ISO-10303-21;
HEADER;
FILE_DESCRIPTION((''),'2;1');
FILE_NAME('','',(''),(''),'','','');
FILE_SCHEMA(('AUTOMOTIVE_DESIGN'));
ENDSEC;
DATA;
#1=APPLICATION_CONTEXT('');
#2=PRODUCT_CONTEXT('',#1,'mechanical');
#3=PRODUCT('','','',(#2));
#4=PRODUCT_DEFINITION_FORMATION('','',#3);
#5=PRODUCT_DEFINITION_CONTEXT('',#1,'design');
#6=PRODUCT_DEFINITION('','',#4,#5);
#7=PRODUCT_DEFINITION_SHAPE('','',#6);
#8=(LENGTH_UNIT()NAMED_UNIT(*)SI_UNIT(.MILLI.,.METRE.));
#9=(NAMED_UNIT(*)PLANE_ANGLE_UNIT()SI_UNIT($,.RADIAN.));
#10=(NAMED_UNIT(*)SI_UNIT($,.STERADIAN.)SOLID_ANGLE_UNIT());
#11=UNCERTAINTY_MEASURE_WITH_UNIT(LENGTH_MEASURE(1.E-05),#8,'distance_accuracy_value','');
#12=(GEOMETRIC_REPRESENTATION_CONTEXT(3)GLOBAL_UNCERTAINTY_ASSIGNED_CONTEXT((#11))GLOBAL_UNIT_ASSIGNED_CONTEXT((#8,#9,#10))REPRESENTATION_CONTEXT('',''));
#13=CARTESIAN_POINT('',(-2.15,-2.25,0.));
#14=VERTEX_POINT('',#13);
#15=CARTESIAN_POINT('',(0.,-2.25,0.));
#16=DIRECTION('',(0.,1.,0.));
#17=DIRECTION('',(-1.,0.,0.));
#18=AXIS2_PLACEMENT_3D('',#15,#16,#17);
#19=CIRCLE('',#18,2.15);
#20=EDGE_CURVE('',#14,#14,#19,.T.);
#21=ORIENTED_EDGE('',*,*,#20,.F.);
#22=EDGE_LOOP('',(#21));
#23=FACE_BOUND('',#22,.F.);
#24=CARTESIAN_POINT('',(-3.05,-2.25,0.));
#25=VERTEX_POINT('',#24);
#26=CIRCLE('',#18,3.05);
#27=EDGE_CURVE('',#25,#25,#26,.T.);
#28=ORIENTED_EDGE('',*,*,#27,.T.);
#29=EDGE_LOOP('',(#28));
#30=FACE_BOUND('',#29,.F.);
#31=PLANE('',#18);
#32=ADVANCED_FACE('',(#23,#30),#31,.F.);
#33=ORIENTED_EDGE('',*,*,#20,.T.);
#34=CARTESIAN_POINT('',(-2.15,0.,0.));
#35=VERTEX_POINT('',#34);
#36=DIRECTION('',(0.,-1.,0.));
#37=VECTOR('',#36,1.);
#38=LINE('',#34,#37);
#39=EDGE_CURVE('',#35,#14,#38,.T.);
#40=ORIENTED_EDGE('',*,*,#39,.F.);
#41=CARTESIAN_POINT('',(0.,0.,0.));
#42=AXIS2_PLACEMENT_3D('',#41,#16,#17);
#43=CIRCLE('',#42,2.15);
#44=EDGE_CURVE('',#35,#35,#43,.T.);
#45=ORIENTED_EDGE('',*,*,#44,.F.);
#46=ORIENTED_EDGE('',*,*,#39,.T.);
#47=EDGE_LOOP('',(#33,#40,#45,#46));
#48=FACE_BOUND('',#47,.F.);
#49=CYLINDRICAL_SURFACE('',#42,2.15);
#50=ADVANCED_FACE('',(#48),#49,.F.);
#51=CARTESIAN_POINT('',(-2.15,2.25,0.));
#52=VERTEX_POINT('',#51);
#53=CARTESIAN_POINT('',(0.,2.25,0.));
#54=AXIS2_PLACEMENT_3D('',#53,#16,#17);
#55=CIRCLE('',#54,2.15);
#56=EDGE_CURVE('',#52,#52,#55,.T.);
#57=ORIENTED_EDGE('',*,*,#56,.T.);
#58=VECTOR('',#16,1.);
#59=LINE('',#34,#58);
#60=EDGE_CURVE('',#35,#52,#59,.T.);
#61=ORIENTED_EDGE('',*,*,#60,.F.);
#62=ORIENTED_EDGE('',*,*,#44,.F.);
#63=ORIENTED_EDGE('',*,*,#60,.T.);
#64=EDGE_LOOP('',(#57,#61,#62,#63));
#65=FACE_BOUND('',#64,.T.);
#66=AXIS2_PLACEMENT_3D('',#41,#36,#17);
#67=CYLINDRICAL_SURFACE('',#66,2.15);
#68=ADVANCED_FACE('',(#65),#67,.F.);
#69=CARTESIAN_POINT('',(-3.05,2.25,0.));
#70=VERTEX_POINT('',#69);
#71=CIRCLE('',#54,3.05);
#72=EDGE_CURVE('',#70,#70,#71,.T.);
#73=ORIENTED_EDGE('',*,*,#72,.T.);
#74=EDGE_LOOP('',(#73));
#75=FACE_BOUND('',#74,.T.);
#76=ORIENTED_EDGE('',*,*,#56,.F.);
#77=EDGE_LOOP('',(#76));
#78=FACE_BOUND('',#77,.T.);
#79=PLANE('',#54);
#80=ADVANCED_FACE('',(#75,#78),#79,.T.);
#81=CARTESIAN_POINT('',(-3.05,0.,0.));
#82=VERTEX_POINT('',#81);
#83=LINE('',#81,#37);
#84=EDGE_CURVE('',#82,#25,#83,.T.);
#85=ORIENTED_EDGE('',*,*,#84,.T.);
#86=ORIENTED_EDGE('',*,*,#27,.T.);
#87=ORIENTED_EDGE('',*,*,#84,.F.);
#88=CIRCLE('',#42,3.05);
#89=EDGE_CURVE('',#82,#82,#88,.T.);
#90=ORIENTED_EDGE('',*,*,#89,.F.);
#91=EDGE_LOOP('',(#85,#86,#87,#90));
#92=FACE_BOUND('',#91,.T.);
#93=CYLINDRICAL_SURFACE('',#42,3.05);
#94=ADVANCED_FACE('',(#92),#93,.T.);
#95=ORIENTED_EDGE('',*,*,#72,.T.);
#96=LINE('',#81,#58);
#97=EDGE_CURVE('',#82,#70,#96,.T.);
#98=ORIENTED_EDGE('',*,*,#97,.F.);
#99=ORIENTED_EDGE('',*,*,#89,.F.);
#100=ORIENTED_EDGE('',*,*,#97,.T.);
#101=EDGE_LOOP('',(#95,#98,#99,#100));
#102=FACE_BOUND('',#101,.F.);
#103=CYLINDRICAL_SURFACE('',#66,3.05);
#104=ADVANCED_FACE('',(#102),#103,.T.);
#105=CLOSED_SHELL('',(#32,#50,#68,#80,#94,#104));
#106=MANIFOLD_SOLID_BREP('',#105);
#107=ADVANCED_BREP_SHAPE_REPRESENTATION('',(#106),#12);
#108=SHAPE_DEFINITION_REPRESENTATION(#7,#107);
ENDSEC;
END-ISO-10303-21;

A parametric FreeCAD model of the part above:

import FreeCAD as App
import Part
import Sketcher

doc = App.newDocument("Part")
body = doc.addObject("PartDesign::Body", "Body")

# Sketch on XZ plane
sketch1 = doc.addObject("Sketcher::SketchObject", "Sketch")
body.addObject(sketch1)
sketch1.AttachmentSupport = (doc.XZ_Plane, [""])
sketch1.MapMode = "FlatFace"
sketch1.addGeometry([
    Part.Circle(App.Vector(0, 0, 0), App.Vector(0, 0, 1), 3.05),
    Part.Circle(App.Vector(0, 0, 0), App.Vector(0, 0, 1), 2.15),
], False)
sketch1.addConstraint([
    Sketcher.Constraint("Coincident", 0, 3, -1, 1),
    Sketcher.Constraint("Coincident", 1, 3, -1, 1),
    Sketcher.Constraint("Diameter", 0, 6.1),
    Sketcher.Constraint("Diameter", 1, 4.3),
])
pad1 = doc.addObject("PartDesign::Pad", "Pad")
body.addObject(pad1)
pad1.Profile = sketch1
pad1.Length = 4.5
pad1.Midplane = True

doc.recompute()
